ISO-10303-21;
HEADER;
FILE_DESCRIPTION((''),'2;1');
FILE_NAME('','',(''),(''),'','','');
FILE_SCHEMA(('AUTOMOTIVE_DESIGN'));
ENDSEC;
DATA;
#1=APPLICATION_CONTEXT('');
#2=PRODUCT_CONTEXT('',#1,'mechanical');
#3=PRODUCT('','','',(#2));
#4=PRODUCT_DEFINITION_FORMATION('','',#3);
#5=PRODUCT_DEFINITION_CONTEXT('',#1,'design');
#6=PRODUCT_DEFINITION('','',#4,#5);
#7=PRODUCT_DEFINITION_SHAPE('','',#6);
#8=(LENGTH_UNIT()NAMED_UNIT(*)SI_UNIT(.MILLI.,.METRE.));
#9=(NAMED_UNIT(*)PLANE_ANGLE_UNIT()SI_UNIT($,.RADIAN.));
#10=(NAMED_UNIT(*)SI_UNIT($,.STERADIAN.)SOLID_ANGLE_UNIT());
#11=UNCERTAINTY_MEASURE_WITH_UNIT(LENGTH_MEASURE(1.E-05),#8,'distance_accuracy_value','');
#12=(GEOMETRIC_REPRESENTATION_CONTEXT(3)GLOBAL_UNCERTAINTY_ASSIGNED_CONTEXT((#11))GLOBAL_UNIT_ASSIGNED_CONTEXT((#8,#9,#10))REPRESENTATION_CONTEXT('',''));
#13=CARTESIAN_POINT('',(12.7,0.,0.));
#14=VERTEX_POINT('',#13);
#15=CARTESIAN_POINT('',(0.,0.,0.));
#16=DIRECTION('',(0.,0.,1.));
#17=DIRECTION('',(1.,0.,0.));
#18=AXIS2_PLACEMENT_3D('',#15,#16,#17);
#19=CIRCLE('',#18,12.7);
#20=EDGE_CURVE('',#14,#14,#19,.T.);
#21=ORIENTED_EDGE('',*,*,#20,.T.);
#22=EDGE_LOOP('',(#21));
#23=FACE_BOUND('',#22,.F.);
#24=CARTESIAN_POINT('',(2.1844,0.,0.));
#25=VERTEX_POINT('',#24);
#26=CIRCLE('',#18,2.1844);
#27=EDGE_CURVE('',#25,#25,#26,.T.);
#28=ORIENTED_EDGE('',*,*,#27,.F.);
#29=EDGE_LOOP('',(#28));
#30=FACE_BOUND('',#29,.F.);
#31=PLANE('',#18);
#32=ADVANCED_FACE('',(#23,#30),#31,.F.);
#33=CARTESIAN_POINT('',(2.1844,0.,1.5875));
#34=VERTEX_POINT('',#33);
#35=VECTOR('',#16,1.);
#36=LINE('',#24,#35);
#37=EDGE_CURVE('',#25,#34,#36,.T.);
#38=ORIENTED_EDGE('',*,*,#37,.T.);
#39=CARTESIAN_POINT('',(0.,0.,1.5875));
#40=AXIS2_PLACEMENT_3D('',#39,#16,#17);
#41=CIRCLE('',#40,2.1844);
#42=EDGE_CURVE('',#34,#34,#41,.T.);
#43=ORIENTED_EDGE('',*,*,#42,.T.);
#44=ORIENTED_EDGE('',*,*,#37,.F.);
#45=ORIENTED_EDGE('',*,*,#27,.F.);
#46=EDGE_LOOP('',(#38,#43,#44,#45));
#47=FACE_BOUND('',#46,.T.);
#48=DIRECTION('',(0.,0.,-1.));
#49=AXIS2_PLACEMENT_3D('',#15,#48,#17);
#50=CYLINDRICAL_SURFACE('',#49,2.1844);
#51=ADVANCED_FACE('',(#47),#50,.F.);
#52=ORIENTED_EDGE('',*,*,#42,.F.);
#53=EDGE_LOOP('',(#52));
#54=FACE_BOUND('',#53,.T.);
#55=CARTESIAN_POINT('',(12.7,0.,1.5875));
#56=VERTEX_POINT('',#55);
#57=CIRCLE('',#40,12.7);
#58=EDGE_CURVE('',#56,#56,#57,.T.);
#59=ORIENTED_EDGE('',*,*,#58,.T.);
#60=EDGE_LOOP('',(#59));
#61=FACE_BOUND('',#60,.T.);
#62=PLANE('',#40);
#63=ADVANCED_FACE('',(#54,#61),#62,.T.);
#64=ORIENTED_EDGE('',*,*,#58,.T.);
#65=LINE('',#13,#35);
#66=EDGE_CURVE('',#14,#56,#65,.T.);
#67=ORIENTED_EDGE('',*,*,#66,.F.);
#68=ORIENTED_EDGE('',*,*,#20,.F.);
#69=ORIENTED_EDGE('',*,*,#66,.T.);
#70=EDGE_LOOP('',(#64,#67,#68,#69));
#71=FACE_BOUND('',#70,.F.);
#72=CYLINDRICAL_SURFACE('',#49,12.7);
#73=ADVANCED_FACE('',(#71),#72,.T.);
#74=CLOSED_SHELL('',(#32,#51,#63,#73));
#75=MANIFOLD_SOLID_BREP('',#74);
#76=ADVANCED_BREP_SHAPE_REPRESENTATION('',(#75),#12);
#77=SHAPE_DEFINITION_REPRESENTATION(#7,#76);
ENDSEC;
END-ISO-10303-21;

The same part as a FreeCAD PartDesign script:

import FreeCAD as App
import Part
import Sketcher
from FreeCAD import Vector
Q = App.Units.Quantity

doc = App.newDocument("Part")
body = doc.addObject("PartDesign::Body", "Body")

# Sketch on XY plane
sketch1 = doc.addObject("Sketcher::SketchObject", "Sketch")
body.addObject(sketch1)
sketch1.AttachmentSupport = (doc.XY_Plane, [""])
sketch1.MapMode = "FlatFace"
sketch1.addGeometry([
    Part.Circle(Vector(0, 0, 0), Vector(0, 0, 1), 12.7),
    Part.Circle(Vector(0, 0, 0), Vector(0, 0, 1), 2.2),
], False)
sketch1.addConstraint([
    Sketcher.Constraint("Coincident", 0, 3, -1, 1),
    Sketcher.Constraint("Coincident", 1, 3, -1, 1),
    Sketcher.Constraint("Diameter", 0, Q("1 in")),
    Sketcher.Constraint("Diameter", 1, Q("0.172 in")),
])
pad1 = doc.addObject("PartDesign::Pad", "Pad")
body.addObject(pad1)
pad1.Profile = sketch1
pad1.Length = Q("0.0625 in")

doc.recompute()
